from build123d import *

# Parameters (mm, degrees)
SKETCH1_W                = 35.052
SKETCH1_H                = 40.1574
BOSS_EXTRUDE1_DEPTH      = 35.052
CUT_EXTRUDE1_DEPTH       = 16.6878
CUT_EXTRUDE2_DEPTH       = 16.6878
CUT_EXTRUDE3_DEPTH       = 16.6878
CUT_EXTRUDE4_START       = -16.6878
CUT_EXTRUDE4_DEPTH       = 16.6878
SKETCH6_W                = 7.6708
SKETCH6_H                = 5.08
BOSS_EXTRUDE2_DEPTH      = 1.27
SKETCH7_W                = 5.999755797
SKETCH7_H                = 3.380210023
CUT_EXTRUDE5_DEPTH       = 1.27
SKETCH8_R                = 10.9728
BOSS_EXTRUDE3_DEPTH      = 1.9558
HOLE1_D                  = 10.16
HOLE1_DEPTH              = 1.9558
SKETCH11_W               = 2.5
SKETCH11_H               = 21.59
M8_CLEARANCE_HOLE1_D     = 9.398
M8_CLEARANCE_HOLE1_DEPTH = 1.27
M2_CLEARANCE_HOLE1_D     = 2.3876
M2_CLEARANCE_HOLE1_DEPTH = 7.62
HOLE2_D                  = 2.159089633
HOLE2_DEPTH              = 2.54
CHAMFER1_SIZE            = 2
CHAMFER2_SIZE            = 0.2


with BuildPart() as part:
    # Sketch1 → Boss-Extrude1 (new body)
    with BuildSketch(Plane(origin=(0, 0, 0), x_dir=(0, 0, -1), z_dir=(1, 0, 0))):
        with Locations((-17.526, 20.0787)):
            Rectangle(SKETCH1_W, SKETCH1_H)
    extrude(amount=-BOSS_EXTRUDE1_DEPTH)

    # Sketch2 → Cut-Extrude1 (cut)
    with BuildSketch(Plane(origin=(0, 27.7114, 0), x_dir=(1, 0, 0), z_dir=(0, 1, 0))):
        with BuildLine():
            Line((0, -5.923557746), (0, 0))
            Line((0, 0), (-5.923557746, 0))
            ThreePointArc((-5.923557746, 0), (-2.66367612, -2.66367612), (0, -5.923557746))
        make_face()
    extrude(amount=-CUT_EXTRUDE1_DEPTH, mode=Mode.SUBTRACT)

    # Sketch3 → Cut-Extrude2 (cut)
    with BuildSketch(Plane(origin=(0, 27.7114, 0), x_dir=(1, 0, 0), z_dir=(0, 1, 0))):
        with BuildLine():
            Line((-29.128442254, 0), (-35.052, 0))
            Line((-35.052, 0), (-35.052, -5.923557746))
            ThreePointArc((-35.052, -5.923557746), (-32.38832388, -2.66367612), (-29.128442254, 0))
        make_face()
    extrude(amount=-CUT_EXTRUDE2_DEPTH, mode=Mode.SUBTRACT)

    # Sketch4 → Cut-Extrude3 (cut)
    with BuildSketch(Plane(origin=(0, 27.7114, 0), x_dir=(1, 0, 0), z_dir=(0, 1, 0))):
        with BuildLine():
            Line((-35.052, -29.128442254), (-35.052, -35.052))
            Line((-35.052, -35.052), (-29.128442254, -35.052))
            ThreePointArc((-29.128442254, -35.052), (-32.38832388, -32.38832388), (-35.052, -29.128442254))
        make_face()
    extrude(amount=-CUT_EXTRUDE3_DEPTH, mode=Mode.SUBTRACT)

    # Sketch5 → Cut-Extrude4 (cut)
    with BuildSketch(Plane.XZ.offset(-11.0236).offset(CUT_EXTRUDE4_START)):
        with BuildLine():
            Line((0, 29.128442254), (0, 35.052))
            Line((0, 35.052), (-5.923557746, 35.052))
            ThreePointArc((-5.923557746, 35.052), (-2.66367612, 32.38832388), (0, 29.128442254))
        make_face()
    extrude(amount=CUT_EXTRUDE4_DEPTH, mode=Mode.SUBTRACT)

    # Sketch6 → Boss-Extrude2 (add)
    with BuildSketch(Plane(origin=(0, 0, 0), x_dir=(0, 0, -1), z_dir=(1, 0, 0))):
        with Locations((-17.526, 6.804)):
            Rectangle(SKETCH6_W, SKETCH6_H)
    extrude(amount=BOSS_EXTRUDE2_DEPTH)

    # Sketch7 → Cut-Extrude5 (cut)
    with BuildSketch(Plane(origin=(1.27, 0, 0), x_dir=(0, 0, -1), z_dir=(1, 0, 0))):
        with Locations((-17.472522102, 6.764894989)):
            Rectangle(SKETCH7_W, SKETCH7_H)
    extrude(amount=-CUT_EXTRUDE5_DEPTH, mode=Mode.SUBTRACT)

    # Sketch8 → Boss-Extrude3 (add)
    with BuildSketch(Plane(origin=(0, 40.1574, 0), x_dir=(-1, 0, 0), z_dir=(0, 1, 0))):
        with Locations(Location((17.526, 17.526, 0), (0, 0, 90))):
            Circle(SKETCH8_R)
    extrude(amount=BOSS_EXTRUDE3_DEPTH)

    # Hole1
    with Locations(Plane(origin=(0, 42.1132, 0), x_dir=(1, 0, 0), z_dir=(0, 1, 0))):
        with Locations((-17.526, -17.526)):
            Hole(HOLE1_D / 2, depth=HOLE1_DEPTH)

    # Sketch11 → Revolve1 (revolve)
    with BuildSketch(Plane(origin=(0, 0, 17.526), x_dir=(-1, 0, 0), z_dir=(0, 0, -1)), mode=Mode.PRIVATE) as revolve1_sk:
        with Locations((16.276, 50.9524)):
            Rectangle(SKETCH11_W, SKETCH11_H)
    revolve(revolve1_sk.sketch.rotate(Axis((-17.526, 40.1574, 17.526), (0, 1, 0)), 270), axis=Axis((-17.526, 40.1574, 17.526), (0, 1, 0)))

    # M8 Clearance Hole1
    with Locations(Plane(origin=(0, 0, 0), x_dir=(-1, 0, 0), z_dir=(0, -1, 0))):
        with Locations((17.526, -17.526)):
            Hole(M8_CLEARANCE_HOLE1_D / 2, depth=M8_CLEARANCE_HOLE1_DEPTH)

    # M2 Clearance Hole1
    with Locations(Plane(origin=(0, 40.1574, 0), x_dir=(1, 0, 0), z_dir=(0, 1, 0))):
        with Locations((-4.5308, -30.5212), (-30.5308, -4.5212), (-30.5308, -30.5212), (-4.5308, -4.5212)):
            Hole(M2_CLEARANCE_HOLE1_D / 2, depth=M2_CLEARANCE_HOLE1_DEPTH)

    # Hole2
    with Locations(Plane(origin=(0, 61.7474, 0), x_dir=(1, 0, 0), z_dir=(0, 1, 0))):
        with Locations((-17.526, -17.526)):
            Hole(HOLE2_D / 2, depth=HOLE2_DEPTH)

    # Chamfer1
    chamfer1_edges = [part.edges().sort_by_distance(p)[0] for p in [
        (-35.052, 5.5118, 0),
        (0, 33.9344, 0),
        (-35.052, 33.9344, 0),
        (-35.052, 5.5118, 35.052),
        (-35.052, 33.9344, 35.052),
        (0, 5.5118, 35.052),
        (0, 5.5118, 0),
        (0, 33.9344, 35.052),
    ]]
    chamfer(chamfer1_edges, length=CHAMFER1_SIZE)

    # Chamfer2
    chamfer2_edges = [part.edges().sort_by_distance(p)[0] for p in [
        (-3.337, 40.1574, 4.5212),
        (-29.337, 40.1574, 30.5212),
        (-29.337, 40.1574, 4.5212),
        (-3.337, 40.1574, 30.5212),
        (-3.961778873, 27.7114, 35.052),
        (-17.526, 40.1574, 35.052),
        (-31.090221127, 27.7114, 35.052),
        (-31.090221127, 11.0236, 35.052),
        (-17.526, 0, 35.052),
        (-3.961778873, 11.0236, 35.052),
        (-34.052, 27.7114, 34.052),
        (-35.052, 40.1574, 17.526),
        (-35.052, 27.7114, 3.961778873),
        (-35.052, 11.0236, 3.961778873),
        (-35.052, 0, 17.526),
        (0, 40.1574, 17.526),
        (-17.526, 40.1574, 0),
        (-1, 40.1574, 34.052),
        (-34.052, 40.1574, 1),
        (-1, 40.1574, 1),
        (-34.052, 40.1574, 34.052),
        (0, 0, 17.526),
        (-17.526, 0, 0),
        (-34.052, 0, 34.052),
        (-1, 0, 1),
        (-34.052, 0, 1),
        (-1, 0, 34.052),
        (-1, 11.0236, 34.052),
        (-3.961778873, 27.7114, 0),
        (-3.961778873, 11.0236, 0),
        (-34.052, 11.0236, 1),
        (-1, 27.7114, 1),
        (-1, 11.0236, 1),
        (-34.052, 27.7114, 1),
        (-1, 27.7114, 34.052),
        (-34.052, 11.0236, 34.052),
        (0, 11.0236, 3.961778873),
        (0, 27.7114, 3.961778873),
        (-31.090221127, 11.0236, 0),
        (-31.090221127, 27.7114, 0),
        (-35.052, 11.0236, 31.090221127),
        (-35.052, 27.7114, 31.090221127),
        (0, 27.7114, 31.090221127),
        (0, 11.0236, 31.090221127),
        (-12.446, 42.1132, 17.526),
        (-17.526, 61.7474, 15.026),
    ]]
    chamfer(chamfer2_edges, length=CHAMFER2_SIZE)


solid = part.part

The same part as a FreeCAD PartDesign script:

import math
import FreeCAD as App
import Part
import Sketcher
from FreeCAD import Vector
Q = App.Units.Quantity


def edges_at(feature, points):
    """Names of the edges that pass closest to the given points."""
    edges = feature.Shape.Edges
    near = lambda p: min(range(len(edges)), key=lambda i: edges[i].distToShape(Part.Vertex(*p))[0])
    return sorted({f"Edge{near(p) + 1}" for p in points})


def add_polygon(sketch, points):
    """Adds a closed chain of lines whose ends are joined by coincident constraints."""
    first, n = sketch.GeometryCount, len(points)
    for a, b in zip(points, points[1:] + points[:1]):
        sketch.addGeometry(Part.LineSegment(App.Vector(*a, 0), App.Vector(*b, 0)), False)
    for i in range(n):
        sketch.addConstraint(Sketcher.Constraint("Coincident", first + i, 2, first + (i + 1) % n, 1))

doc = App.newDocument("Part")
body = doc.addObject("PartDesign::Body", "Body")

# Sketch on YZ plane
sketch1 = body.newObject("Sketcher::SketchObject", "Sketch")
sketch1.AttachmentSupport = (doc.getObject("YZ_Plane"), [""])
sketch1.MapMode = "FlatFace"
add_polygon(sketch1, [(40, 35), (0, 35), (0, 0), (40, 0)])  # lines 0-3
sketch1.addConstraint(Sketcher.Constraint("Horizontal", 0))
sketch1.addConstraint(Sketcher.Constraint("Vertical", 1))
sketch1.addConstraint(Sketcher.Constraint("Horizontal", 2))
sketch1.addConstraint(Sketcher.Constraint("Vertical", 3))
sketch1.addConstraint(Sketcher.Constraint("Coincident", 1, 2, -1, 1))
sketch1.addConstraint(Sketcher.Constraint("DistanceY", 1, 2, 1, 1, Q("1.38 in")))
sketch1.addConstraint(Sketcher.Constraint("DistanceX", 0, 2, 0, 1, Q("1.581 in")))
pad1 = body.newObject("PartDesign::Pad", "Pad")
pad1.Profile = sketch1
pad1.Length = Q("1.38 in")
pad1.Reversed = True

# Sketch on XZ plane
sketch2 = body.newObject("Sketcher::SketchObject", "Sketch001")
sketch2.AttachmentSupport = (doc.getObject("XZ_Plane"), [""])
sketch2.MapMode = "FlatFace"
sketch2.AttachmentOffset = App.Placement(Vector(0, 0, -1.091 * 25.4), App.Rotation())
sketch2.addGeometry(Part.LineSegment(Vector(0, 6, 0), Vector(0, 0, 0)), False)
sketch2.addGeometry(Part.LineSegment(Vector(0, 0, 0), Vector(-6, 0, 0)), False)
sketch2.addGeometry(Part.ArcOfCircle(Part.Circle(Vector(-18, 18, 0), Vector(0, 0, 1), 21), math.radians(-56), math.radians(-34)), False)
sketch2.addConstraint(Sketcher.Constraint("Coincident", 0, 2, 1, 1))
sketch2.addConstraint(Sketcher.Constraint("Coincident", 1, 2, 2, 1))
sketch2.addConstraint(Sketcher.Constraint("Coincident", 2, 2, 0, 1))
sketch2.addConstraint(Sketcher.Constraint("Vertical", 0))
sketch2.addConstraint(Sketcher.Constraint("Horizontal", 1))
sketch2.addConstraint(Sketcher.Constraint("Coincident", 0, 2, -1, 1))
sketch2.addConstraint(Sketcher.Constraint("Equal", 1, 0))
sketch2.addConstraint(Sketcher.Constraint("Radius", 2, Q("0.8275 in")))
sketch2.addConstraint(Sketcher.Constraint("DistanceX", 2, 3, -1, 1, Q("0.69 in")))
pocket1 = body.newObject("PartDesign::Pocket", "Pocket")
pocket1.Profile = sketch2
pocket1.Length = Q("0.657 in")
pocket1.Reversed = True

# Sketch on XZ plane
sketch3 = body.newObject("Sketcher::SketchObject", "Sketch002")
sketch3.AttachmentSupport = (doc.getObject("XZ_Plane"), [""])
sketch3.MapMode = "FlatFace"
sketch3.AttachmentOffset = App.Placement(Vector(0, 0, -1.091 * 25.4), App.Rotation())
sketch3.addGeometry(Part.LineSegment(Vector(-29, 0, 0), Vector(-35, 0, 0)), False)
sketch3.addGeometry(Part.LineSegment(Vector(-35, 0, 0), Vector(-35, 6, 0)), False)
sketch3.addGeometry(Part.ArcOfCircle(Part.Circle(Vector(-18, 18, 0), Vector(0, 0, 1), 21), math.radians(-146), math.radians(-124)), False)
sketch3.addConstraint(Sketcher.Constraint("Coincident", 0, 2, 1, 1))
sketch3.addConstraint(Sketcher.Constraint("Coincident", 1, 2, 2, 1))
sketch3.addConstraint(Sketcher.Constraint("Coincident", 2, 2, 0, 1))
sketch3.addConstraint(Sketcher.Constraint("Horizontal", 0))
sketch3.addConstraint(Sketcher.Constraint("Vertical", 1))
sketch3.addConstraint(Sketcher.Constraint("PointOnObject", 0, 2, -1))
sketch3.addConstraint(Sketcher.Constraint("Equal", 0, 1))
sketch3.addConstraint(Sketcher.Constraint("Radius", 2, Q("0.8275 in")))
sketch3.addConstraint(Sketcher.Constraint("DistanceX", 2, 3, -1, 1, Q("0.69 in")))
sketch3.addConstraint(Sketcher.Constraint("DistanceY", -1, 1, 2, 3, Q("0.69 in")))
pocket2 = body.newObject("PartDesign::Pocket", "Pocket001")
pocket2.Profile = sketch3
pocket2.Length = Q("0.657 in")
pocket2.Reversed = True

# Sketch on XZ plane
sketch4 = body.newObject("Sketcher::SketchObject", "Sketch003")
sketch4.AttachmentSupport = (doc.getObject("XZ_Plane"), [""])
sketch4.MapMode = "FlatFace"
sketch4.AttachmentOffset = App.Placement(Vector(0, 0, -1.091 * 25.4), App.Rotation())
sketch4.addGeometry(Part.LineSegment(Vector(-35, 29, 0), Vector(-35, 35, 0)), False)
sketch4.addGeometry(Part.LineSegment(Vector(-35, 35, 0), Vector(-29, 35, 0)), False)
sketch4.addGeometry(Part.ArcOfCircle(Part.Circle(Vector(-18, 18, 0), Vector(0, 0, 1), 21), math.radians(124), math.radians(146)), False)
sketch4.addConstraint(Sketcher.Constraint("Coincident", 0, 2, 1, 1))
sketch4.addConstraint(Sketcher.Constraint("Coincident", 1, 2, 2, 1))
sketch4.addConstraint(Sketcher.Constraint("Coincident", 2, 2, 0, 1))
sketch4.addConstraint(Sketcher.Constraint("Vertical", 0))
sketch4.addConstraint(Sketcher.Constraint("Horizontal", 1))
sketch4.addConstraint(Sketcher.Constraint("Equal", 1, 0))
sketch4.addConstraint(Sketcher.Constraint("Radius", 2, Q("0.8275 in")))
sketch4.addConstraint(Sketcher.Constraint("DistanceX", 2, 3, -1, 1, Q("0.69 in")))
sketch4.addConstraint(Sketcher.Constraint("DistanceY", -1, 1, 2, 3, Q("0.69 in")))
sketch4.addConstraint(Sketcher.Constraint("DistanceX", 0, 2, -1, 1, Q("1.38 in")))
pocket3 = body.newObject("PartDesign::Pocket", "Pocket002")
pocket3.Profile = sketch4
pocket3.Length = Q("0.657 in")
pocket3.Reversed = True

# Sketch on XZ plane
sketch5 = body.newObject("Sketcher::SketchObject", "Sketch004")
sketch5.AttachmentSupport = (doc.getObject("XZ_Plane"), [""])
sketch5.MapMode = "FlatFace"
sketch5.AttachmentOffset = App.Placement(Vector(0, 0, -1.091 * 25.4), App.Rotation())
sketch5.addGeometry(Part.LineSegment(Vector(0, 29, 0), Vector(0, 35, 0)), False)
sketch5.addGeometry(Part.LineSegment(Vector(0, 35, 0), Vector(-6, 35, 0)), False)
sketch5.addGeometry(Part.ArcOfCircle(Part.Circle(Vector(-18, 18, 0), Vector(0, 0, 1), 21), math.radians(34), math.radians(56)), False)
sketch5.addConstraint(Sketcher.Constraint("Coincident", 0, 2, 1, 1))
sketch5.addConstraint(Sketcher.Constraint("Coincident", 1, 2, 2, 2))
sketch5.addConstraint(Sketcher.Constraint("Coincident", 2, 1, 0, 1))
sketch5.addConstraint(Sketcher.Constraint("Vertical", 0))
sketch5.addConstraint(Sketcher.Constraint("Horizontal", 1))
sketch5.addConstraint(Sketcher.Constraint("PointOnObject", 0, 2, -2))
sketch5.addConstraint(Sketcher.Constraint("Equal", 1, 0))
sketch5.addConstraint(Sketcher.Constraint("Radius", 2, Q("0.8275 in")))
sketch5.addConstraint(Sketcher.Constraint("DistanceX", 2, 3, -1, 1, Q("0.69 in")))
sketch5.addConstraint(Sketcher.Constraint("DistanceY", -1, 1, 2, 3, Q("0.69 in")))
pocket4 = body.newObject("PartDesign::Pocket", "Pocket003")
pocket4.Profile = sketch5
pocket4.Length = Q("0.657 in")
pocket4.Reversed = True

# Sketch on YZ plane
sketch6 = body.newObject("Sketcher::SketchObject", "Sketch005")
sketch6.AttachmentSupport = (doc.getObject("YZ_Plane"), [""])
sketch6.MapMode = "FlatFace"
add_polygon(sketch6, [(9, 21), (4, 21), (4, 14), (9, 14)])  # lines 0-3
sketch6.addConstraint(Sketcher.Constraint("Horizontal", 0))
sketch6.addConstraint(Sketcher.Constraint("Vertical", 1))
sketch6.addConstraint(Sketcher.Constraint("Horizontal", 2))
sketch6.addConstraint(Sketcher.Constraint("Vertical", 3))
sketch6.addConstraint(Sketcher.Constraint("DistanceX", 0, 2, 0, 1, Q("0.2 in")))
sketch6.addConstraint(Sketcher.Constraint("DistanceY", 1, 2, 1, 1, Q("0.302 in")))
sketch6.addConstraint(Sketcher.Constraint("DistanceY", -1, 1, 0, 2, Q("0.841 in")))
sketch6.addConstraint(Sketcher.Constraint("DistanceX", -1, 1, 0, 2, 4.264))
pad2 = body.newObject("PartDesign::Pad", "Pad001")
pad2.Profile = sketch6
pad2.Length = Q("0.05 in")

# Sketch on YZ plane
sketch7 = body.newObject("Sketcher::SketchObject", "Sketch006")
sketch7.AttachmentSupport = (doc.getObject("YZ_Plane"), [""])
sketch7.MapMode = "FlatFace"
sketch7.AttachmentOffset = App.Placement(Vector(0, 0, 0.05 * 25.4), App.Rotation())
add_polygon(sketch7, [(8.5, 20.5), (5.1, 20.5), (5.1, 14.5), (8.5, 14.5)])  # lines 0-3
sketch7.addConstraint(Sketcher.Constraint("Horizontal", 0))
sketch7.addConstraint(Sketcher.Constraint("Vertical", 1))
sketch7.addConstraint(Sketcher.Constraint("Horizontal", 2))
sketch7.addConstraint(Sketcher.Constraint("Vertical", 3))
sketch7.addConstraint(Sketcher.Constraint("DistanceY", -1, 1, 0, 2, Q("0.806 in")))
sketch7.addConstraint(Sketcher.Constraint("DistanceX", 0, 2, 0, 1, 3.38021))
sketch7.addConstraint(Sketcher.Constraint("DistanceX", -1, 1, 2, 2, 8.455))
sketch7.addConstraint(Sketcher.Constraint("DistanceY", 1, 2, 1, 1, 5.999756))
pocket5 = body.newObject("PartDesign::Pocket", "Pocket004")
pocket5.Profile = sketch7
pocket5.Length = Q("0.05 in")

# Sketch on XZ plane
sketch8 = body.newObject("Sketcher::SketchObject", "Sketch007")
sketch8.AttachmentSupport = (doc.getObject("XZ_Plane"), [""])
sketch8.MapMode = "FlatFace"
sketch8.AttachmentOffset = App.Placement(Vector(0, 0, -1.581 * 25.4), App.Rotation())
sketch8.addGeometry(Part.Circle(Vector(-18, 18, 0), Vector(0, 0, 1), 11), False)
sketch8.addConstraint(Sketcher.Constraint("Diameter", 0, Q("0.864 in")))
sketch8.addConstraint(Sketcher.Constraint("DistanceX", 0, 3, -1, 1, Q("0.69 in")))
sketch8.addConstraint(Sketcher.Constraint("DistanceY", -1, 1, 0, 3, Q("0.69 in")))
pad3 = body.newObject("PartDesign::Pad", "Pad002")
pad3.Profile = sketch8
pad3.Length = Q("0.077 in")
pad3.Reversed = True

# Sketch on XZ plane
sketch9 = body.newObject("Sketcher::SketchObject", "Sketch008")
sketch9.AttachmentSupport = (doc.getObject("XZ_Plane"), [""])
sketch9.MapMode = "FlatFace"
sketch9.AttachmentOffset = App.Placement(Vector(0, 0, -1.658 * 25.4), App.Rotation())
sketch9.addGeometry(Part.Circle(Vector(-18, 18, 0), Vector(0, 0, 1), 5), False)
sketch9.addConstraint(Sketcher.Constraint("Diameter", 0, Q("0.4 in")))
sketch9.addConstraint(Sketcher.Constraint("DistanceX", 0, 3, -1, 1, Q("0.69 in")))
sketch9.addConstraint(Sketcher.Constraint("DistanceY", -1, 1, 0, 3, Q("0.69 in")))
doc.recompute()
hole = body.newObject("PartDesign::Hole", "Hole")
hole.Profile = sketch9
hole.ThreadType = "None"
hole.Diameter = Q("0.4 in")
hole.DepthType = "Dimension"
hole.Depth = Q("0.077 in")
hole.DrillPoint = "Flat"
hole.Reversed = True

# Sketch on XY plane
sketch10 = body.newObject("Sketcher::SketchObject", "Sketch009")
sketch10.AttachmentSupport = (doc.getObject("XY_Plane"), [""])
sketch10.MapMode = "FlatFace"
sketch10.AttachmentOffset = App.Placement(Vector(0, 0, 0.69 * 25.4), App.Rotation())
add_polygon(sketch10, [(-15, 61.7), (-15, 40.2), (-17.5, 40.2), (-17.5, 61.7)])  # lines 0-3
sketch10.addGeometry(Part.LineSegment(Vector(-17.5, 40.2, 0), Vector(-17.5, 61.7, 0)), True)  # axis
sketch10.addConstraint(Sketcher.Constraint("Vertical", 0))
sketch10.addConstraint(Sketcher.Constraint("Horizontal", 1))
sketch10.addConstraint(Sketcher.Constraint("Vertical", 2))
sketch10.addConstraint(Sketcher.Constraint("Horizontal", 3))
sketch10.addConstraint(Sketcher.Constraint("Vertical", 4))
sketch10.addConstraint(Sketcher.Constraint("Coincident", 4, 1, 1, 2))
sketch10.addConstraint(Sketcher.Constraint("Horizontal", 3, 2, 4, 2))
sketch10.addConstraint(Sketcher.Constraint("DistanceY", 0, 2, 0, 1, Q("0.85 in")))
sketch10.addConstraint(Sketcher.Constraint("DistanceX", 1, 2, -1, 1, Q("0.69 in")))
sketch10.addConstraint(Sketcher.Constraint("DistanceY", -1, 1, 0, 2, Q("1.581 in")))
sketch10.addConstraint(Sketcher.Constraint("DistanceX", 1, 2, 1, 1, 2.5))
revolution = body.newObject("PartDesign::Revolution", "Revolution")
revolution.Profile = sketch10
revolution.ReferenceAxis = (sketch10, ["Axis0"])
revolution.Angle = 360

# Sketch on XZ plane
sketch11 = body.newObject("Sketcher::SketchObject", "Sketch010")
sketch11.AttachmentSupport = (doc.getObject("XZ_Plane"), [""])
sketch11.MapMode = "FlatFace"
sketch11.addGeometry(Part.Circle(Vector(-17.5, 17.5, 0), Vector(0, 0, 1), 4.7), False)
sketch11.addConstraint(Sketcher.Constraint("Diameter", 0, Q("0.37 in")))
sketch11.addConstraint(Sketcher.Constraint("DistanceX", 0, 3, -1, 1, Q("0.69 in")))
sketch11.addConstraint(Sketcher.Constraint("DistanceY", -1, 1, 0, 3, Q("0.69 in")))
doc.recompute()
hole2 = body.newObject("PartDesign::Hole", "Hole001")
hole2.Profile = sketch11
hole2.ThreadType = "None"
hole2.Diameter = Q("0.37 in")
hole2.DepthType = "Dimension"
hole2.Depth = Q("0.05 in")
hole2.DrillPoint = "Flat"

# Sketch on XZ plane
sketch12 = body.newObject("Sketcher::SketchObject", "Sketch011")
sketch12.AttachmentSupport = (doc.getObject("XZ_Plane"), [""])
sketch12.MapMode = "FlatFace"
sketch12.AttachmentOffset = App.Placement(Vector(0, 0, -1.581 * 25.4), App.Rotation())
sketch12.addGeometry(Part.Circle(Vector(-4.5, 30.5, 0), Vector(0, 0, 1), 1.2), False)
sketch12.addGeometry(Part.Circle(Vector(-30.5, 4.5, 0), Vector(0, 0, 1), 1.2), False)
sketch12.addGeometry(Part.Circle(Vector(-30.5, 30.5, 0), Vector(0, 0, 1), 1.2), False)
sketch12.addGeometry(Part.Circle(Vector(-4.5, 4.5, 0), Vector(0, 0, 1), 1.2), False)
sketch12.addConstraint(Sketcher.Constraint("Equal", 0, 1))
sketch12.addConstraint(Sketcher.Constraint("Equal", 1, 2))
sketch12.addConstraint(Sketcher.Constraint("Equal", 2, 3))
sketch12.addConstraint(Sketcher.Constraint("Horizontal", 0, 3, 2, 3))
sketch12.addConstraint(Sketcher.Constraint("Horizontal", 1, 3, 3, 3))
sketch12.addConstraint(Sketcher.Constraint("Vertical", 1, 3, 2, 3))
sketch12.addConstraint(Sketcher.Constraint("Vertical", 0, 3, 3, 3))
sketch12.addConstraint(Sketcher.Constraint("Diameter", 0, Q("0.094 in")))
sketch12.addConstraint(Sketcher.Constraint("DistanceX", 1, 3, -1, 1, Q("1.202 in")))
sketch12.addConstraint(Sketcher.Constraint("DistanceY", -1, 1, 1, 3, Q("0.178 in")))
sketch12.addConstraint(Sketcher.Constraint("DistanceX", 0, 3, -1, 1, 4.5308))
sketch12.addConstraint(Sketcher.Constraint("DistanceY", -1, 1, 0, 3, 30.5212))
doc.recompute()
hole3 = body.newObject("PartDesign::Hole", "Hole002")
hole3.Profile = sketch12
hole3.ThreadType = "None"
hole3.Diameter = Q("0.094 in")
hole3.DepthType = "Dimension"
hole3.Depth = Q("0.3 in")
hole3.DrillPoint = "Flat"
hole3.Reversed = True

# Sketch on XZ plane
sketch13 = body.newObject("Sketcher::SketchObject", "Sketch012")
sketch13.AttachmentSupport = (doc.getObject("XZ_Plane"), [""])
sketch13.MapMode = "FlatFace"
sketch13.AttachmentOffset = App.Placement(Vector(0, 0, -2.431 * 25.4), App.Rotation())
sketch13.addGeometry(Part.Circle(Vector(-17.5, 17.5, 0), Vector(0, 0, 1), 1.1), False)
sketch13.addConstraint(Sketcher.Constraint("DistanceX", 0, 3, -1, 1, Q("0.69 in")))
sketch13.addConstraint(Sketcher.Constraint("DistanceY", -1, 1, 0, 3, Q("0.69 in")))
sketch13.addConstraint(Sketcher.Constraint("Diameter", 0, 2.15909))
doc.recompute()
hole4 = body.newObject("PartDesign::Hole", "Hole003")
hole4.Profile = sketch13
hole4.ThreadType = "None"
hole4.Diameter = 2.15909
hole4.DepthType = "Dimension"
hole4.Depth = Q("0.1 in")
hole4.DrillPoint = "Flat"
hole4.Reversed = True
doc.recompute()

chamfer = body.newObject("PartDesign::Chamfer", "Chamfer")
chamfer.Base = (hole4, edges_at(hole4, [
    (-35.052, 5.512, 0),
    (0, 33.934, 0),
    (-35.052, 33.934, 0),
    (-35.052, 5.512, 35.052),
    (-35.052, 33.934, 35.052),
    (0, 5.512, 35.052),
    (0, 5.512, 0),
    (0, 33.934, 35.052),
]))
chamfer.Size = 2
doc.recompute()

chamfer2 = body.newObject("PartDesign::Chamfer", "Chamfer001")
chamfer2.Base = (chamfer, edges_at(chamfer, [
    (-3.337, 40.157, 4.521),
    (-29.337, 40.157, 30.521),
    (-29.337, 40.157, 4.521),
    (-3.337, 40.157, 30.521),
    (-3.962, 27.711, 35.052),
    (-17.526, 40.157, 35.052),
    (-31.09, 27.711, 35.052),
    (-31.09, 11.024, 35.052),
    (-17.526, 0, 35.052),
    (-3.962, 11.024, 35.052),
    (-34.052, 27.711, 34.052),
    (-35.052, 40.157, 17.526),
    (-35.052, 27.711, 3.962),
    (-35.052, 11.024, 3.962),
    (-35.052, 0, 17.526),
    (0, 40.157, 17.526),
    (-17.526, 40.157, 0),
    (-1, 40.157, 34.052),
    (-34.052, 40.157, 1),
    (-1, 40.157, 1),
    (-34.052, 40.157, 34.052),
    (0, 0, 17.526),
    (-17.526, 0, 0),
    (-34.052, 0, 34.052),
    (-1, 0, 1),
    (-34.052, 0, 1),
    (-1, 0, 34.052),
    (-1, 11.024, 34.052),
    (-3.962, 27.711, 0),
    (-3.962, 11.024, 0),
    (-34.052, 11.024, 1),
    (-1, 27.711, 1),
    (-1, 11.024, 1),
    (-34.052, 27.711, 1),
    (-1, 27.711, 34.052),
    (-34.052, 11.024, 34.052),
    (0, 11.024, 3.962),
    (0, 27.711, 3.962),
    (-31.09, 11.024, 0),
    (-31.09, 27.711, 0),
    (-35.052, 11.024, 31.09),
    (-35.052, 27.711, 31.09),
    (0, 27.711, 31.09),
    (0, 11.024, 31.09),
    (-12.446, 42.113, 17.526),
    (-17.526, 61.747, 15.026),
]))
chamfer2.Size = 0.2

doc.recompute()
